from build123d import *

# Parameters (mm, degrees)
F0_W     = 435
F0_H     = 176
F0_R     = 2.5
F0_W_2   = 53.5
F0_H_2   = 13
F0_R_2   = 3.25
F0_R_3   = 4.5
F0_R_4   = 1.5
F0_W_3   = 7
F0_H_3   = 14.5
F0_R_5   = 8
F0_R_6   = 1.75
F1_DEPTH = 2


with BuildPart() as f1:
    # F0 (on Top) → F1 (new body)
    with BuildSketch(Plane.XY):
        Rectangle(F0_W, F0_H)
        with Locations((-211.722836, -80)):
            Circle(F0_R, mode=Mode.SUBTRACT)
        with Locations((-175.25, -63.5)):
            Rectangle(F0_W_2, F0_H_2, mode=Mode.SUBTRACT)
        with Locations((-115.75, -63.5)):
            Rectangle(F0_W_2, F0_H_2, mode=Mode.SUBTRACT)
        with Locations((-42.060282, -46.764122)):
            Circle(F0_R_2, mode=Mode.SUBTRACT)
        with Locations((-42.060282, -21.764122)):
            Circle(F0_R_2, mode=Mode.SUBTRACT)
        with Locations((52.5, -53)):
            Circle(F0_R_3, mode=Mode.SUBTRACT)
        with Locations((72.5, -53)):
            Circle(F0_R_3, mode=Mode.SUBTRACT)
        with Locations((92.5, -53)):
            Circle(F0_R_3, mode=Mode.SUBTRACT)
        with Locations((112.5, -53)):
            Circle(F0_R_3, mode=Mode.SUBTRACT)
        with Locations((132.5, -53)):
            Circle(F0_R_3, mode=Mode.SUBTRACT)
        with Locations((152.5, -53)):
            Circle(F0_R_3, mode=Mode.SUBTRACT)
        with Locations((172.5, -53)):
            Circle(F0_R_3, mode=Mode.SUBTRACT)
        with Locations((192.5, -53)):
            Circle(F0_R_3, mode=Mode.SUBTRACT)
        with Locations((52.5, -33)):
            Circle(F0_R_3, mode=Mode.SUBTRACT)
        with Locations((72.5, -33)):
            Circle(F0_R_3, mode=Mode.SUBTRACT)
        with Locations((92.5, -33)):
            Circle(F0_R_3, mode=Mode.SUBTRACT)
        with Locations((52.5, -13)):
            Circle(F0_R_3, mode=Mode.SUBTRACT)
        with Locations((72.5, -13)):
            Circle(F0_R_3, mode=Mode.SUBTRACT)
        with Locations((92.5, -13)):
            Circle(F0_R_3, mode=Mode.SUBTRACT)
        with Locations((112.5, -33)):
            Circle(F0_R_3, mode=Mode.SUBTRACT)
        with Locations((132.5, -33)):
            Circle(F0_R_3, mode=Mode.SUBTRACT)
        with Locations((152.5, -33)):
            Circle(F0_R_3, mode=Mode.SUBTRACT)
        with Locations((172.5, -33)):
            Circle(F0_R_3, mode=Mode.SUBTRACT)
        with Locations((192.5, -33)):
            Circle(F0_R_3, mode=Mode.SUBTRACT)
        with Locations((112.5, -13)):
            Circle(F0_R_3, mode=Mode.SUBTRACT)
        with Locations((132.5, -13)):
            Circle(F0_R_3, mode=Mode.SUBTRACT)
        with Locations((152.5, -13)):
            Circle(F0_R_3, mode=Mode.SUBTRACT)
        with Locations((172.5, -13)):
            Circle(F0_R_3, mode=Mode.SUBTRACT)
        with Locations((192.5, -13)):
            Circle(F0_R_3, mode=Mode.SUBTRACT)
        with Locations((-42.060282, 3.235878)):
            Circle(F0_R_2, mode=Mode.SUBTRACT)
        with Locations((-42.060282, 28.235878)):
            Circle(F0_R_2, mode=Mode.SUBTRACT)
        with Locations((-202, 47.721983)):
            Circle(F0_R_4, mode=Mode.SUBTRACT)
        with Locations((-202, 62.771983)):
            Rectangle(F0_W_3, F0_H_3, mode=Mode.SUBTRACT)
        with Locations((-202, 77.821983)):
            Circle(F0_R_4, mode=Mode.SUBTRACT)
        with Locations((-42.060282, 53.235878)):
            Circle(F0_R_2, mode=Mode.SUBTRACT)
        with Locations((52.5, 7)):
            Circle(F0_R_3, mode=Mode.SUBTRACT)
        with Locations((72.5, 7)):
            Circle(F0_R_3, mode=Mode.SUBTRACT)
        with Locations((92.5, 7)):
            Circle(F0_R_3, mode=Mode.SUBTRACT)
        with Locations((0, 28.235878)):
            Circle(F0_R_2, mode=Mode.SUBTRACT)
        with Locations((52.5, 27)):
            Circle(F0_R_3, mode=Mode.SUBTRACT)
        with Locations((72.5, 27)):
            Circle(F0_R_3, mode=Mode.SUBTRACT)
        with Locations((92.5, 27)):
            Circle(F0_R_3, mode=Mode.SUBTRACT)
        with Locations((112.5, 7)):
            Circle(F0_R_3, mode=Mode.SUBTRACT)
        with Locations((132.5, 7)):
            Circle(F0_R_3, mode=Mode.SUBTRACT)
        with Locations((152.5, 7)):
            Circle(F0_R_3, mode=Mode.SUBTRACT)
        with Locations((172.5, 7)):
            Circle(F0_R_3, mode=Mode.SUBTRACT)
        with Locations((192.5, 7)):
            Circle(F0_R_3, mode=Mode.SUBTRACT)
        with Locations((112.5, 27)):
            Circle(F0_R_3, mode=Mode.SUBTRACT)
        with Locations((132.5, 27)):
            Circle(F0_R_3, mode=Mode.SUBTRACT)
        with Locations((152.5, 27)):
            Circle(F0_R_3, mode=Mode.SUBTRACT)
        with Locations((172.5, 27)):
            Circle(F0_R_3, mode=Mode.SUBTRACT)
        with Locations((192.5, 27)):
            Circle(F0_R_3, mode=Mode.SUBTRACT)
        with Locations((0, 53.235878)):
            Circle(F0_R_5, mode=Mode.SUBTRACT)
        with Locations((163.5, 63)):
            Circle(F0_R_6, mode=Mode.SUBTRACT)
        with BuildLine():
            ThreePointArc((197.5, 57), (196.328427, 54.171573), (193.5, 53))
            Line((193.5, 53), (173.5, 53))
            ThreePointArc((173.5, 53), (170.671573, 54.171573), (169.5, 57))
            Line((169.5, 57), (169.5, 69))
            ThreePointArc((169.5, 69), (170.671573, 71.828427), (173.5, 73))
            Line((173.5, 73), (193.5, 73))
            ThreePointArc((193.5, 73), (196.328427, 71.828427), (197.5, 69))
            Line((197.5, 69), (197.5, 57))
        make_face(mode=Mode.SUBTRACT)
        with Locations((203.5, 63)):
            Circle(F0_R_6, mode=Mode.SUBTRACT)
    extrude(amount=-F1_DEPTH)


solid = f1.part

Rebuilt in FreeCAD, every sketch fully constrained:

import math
import FreeCAD as App
import Part
import Sketcher


def add_polygon(sketch, points):
    """Adds a closed chain of lines whose ends are joined by coincident constraints."""
    first, n = sketch.GeometryCount, len(points)
    for a, b in zip(points, points[1:] + points[:1]):
        sketch.addGeometry(Part.LineSegment(App.Vector(*a, 0), App.Vector(*b, 0)), False)
    for i in range(n):
        sketch.addConstraint(Sketcher.Constraint("Coincident", first + i, 2, first + (i + 1) % n, 1))

doc = App.newDocument("Part")
body = doc.addObject("PartDesign::Body", "Body")

# Sketch on XY plane
sketch1 = doc.addObject("Sketcher::SketchObject", "Sketch")
body.addObject(sketch1)
sketch1.AttachmentSupport = (doc.XY_Plane, [""])
sketch1.MapMode = "FlatFace"
add_polygon(sketch1, [(-217.5, 88), (-217.5, -88), (217.5, -88), (217.5, 88)])  # lines 0-3
sketch1.addGeometry(Part.Circle(App.Vector(-211.722836, -80, 0), App.Vector(0, 0, 1), 2.5), False)  # 4
add_polygon(sketch1, [(-148.5, -70), (-202, -70), (-202, -57), (-148.5, -57)])  # lines 5-8
add_polygon(sketch1, [(-89, -70), (-142.5, -70), (-142.5, -57), (-89, -57)])  # lines 9-12
sketch1.addGeometry(Part.Circle(App.Vector(-42.060282, -46.764122, 0), App.Vector(0, 0, 1), 3.25), False)  # 13
sketch1.addGeometry(Part.Circle(App.Vector(-42.060282, -21.764122, 0), App.Vector(0, 0, 1), 3.25), False)  # 14
sketch1.addGeometry(Part.Circle(App.Vector(52.5, -53, 0), App.Vector(0, 0, 1), 4.5), False)  # 15
sketch1.addGeometry(Part.Circle(App.Vector(72.5, -53, 0), App.Vector(0, 0, 1), 4.5), False)  # 16
sketch1.addGeometry(Part.Circle(App.Vector(92.5, -53, 0), App.Vector(0, 0, 1), 4.5), False)  # 17
sketch1.addGeometry(Part.Circle(App.Vector(112.5, -53, 0), App.Vector(0, 0, 1), 4.5), False)  # 18
sketch1.addGeometry(Part.Circle(App.Vector(132.5, -53, 0), App.Vector(0, 0, 1), 4.5), False)  # 19
sketch1.addGeometry(Part.Circle(App.Vector(152.5, -53, 0), App.Vector(0, 0, 1), 4.5), False)  # 20
sketch1.addGeometry(Part.Circle(App.Vector(172.5, -53, 0), App.Vector(0, 0, 1), 4.5), False)  # 21
sketch1.addGeometry(Part.Circle(App.Vector(192.5, -53, 0), App.Vector(0, 0, 1), 4.5), False)  # 22
sketch1.addGeometry(Part.Circle(App.Vector(52.5, -33, 0), App.Vector(0, 0, 1), 4.5), False)  # 23
sketch1.addGeometry(Part.Circle(App.Vector(72.5, -33, 0), App.Vector(0, 0, 1), 4.5), False)  # 24
sketch1.addGeometry(Part.Circle(App.Vector(92.5, -33, 0), App.Vector(0, 0, 1), 4.5), False)  # 25
sketch1.addGeometry(Part.Circle(App.Vector(52.5, -13, 0), App.Vector(0, 0, 1), 4.5), False)  # 26
sketch1.addGeometry(Part.Circle(App.Vector(72.5, -13, 0), App.Vector(0, 0, 1), 4.5), False)  # 27
sketch1.addGeometry(Part.Circle(App.Vector(92.5, -13, 0), App.Vector(0, 0, 1), 4.5), False)  # 28
sketch1.addGeometry(Part.Circle(App.Vector(112.5, -33, 0), App.Vector(0, 0, 1), 4.5), False)  # 29
sketch1.addGeometry(Part.Circle(App.Vector(132.5, -33, 0), App.Vector(0, 0, 1), 4.5), False)  # 30
sketch1.addGeometry(Part.Circle(App.Vector(152.5, -33, 0), App.Vector(0, 0, 1), 4.5), False)  # 31
sketch1.addGeometry(Part.Circle(App.Vector(172.5, -33, 0), App.Vector(0, 0, 1), 4.5), False)  # 32
sketch1.addGeometry(Part.Circle(App.Vector(192.5, -33, 0), App.Vector(0, 0, 1), 4.5), False)  # 33
sketch1.addGeometry(Part.Circle(App.Vector(112.5, -13, 0), App.Vector(0, 0, 1), 4.5), False)  # 34
sketch1.addGeometry(Part.Circle(App.Vector(132.5, -13, 0), App.Vector(0, 0, 1), 4.5), False)  # 35
sketch1.addGeometry(Part.Circle(App.Vector(152.5, -13, 0), App.Vector(0, 0, 1), 4.5), False)  # 36
sketch1.addGeometry(Part.Circle(App.Vector(172.5, -13, 0), App.Vector(0, 0, 1), 4.5), False)  # 37
sketch1.addGeometry(Part.Circle(App.Vector(192.5, -13, 0), App.Vector(0, 0, 1), 4.5), False)  # 38
sketch1.addGeometry(Part.Circle(App.Vector(-42.060282, 3.235878, 0), App.Vector(0, 0, 1), 3.25), False)  # 39
sketch1.addGeometry(Part.Circle(App.Vector(-42.060282, 28.235878, 0), App.Vector(0, 0, 1), 3.25), False)  # 40
sketch1.addGeometry(Part.Circle(App.Vector(-202, 47.721983, 0), App.Vector(0, 0, 1), 1.5), False)  # 41
add_polygon(sketch1, [(-198.5, 55.521983), (-205.5, 55.521983), (-205.5, 70.021983), (-198.5, 70.021983)])  # lines 42-45
sketch1.addGeometry(Part.Circle(App.Vector(-202, 77.821983, 0), App.Vector(0, 0, 1), 1.5), False)  # 46
sketch1.addGeometry(Part.Circle(App.Vector(-42.060282, 53.235878, 0), App.Vector(0, 0, 1), 3.25), False)  # 47
sketch1.addGeometry(Part.Circle(App.Vector(52.5, 7, 0), App.Vector(0, 0, 1), 4.5), False)  # 48
sketch1.addGeometry(Part.Circle(App.Vector(72.5, 7, 0), App.Vector(0, 0, 1), 4.5), False)  # 49
sketch1.addGeometry(Part.Circle(App.Vector(92.5, 7, 0), App.Vector(0, 0, 1), 4.5), False)  # 50
sketch1.addGeometry(Part.Circle(App.Vector(0, 28.235878, 0), App.Vector(0, 0, 1), 3.25), False)  # 51
sketch1.addGeometry(Part.Circle(App.Vector(52.5, 27, 0), App.Vector(0, 0, 1), 4.5), False)  # 52
sketch1.addGeometry(Part.Circle(App.Vector(72.5, 27, 0), App.Vector(0, 0, 1), 4.5), False)  # 53
sketch1.addGeometry(Part.Circle(App.Vector(92.5, 27, 0), App.Vector(0, 0, 1), 4.5), False)  # 54
sketch1.addGeometry(Part.Circle(App.Vector(112.5, 7, 0), App.Vector(0, 0, 1), 4.5), False)  # 55
sketch1.addGeometry(Part.Circle(App.Vector(132.5, 7, 0), App.Vector(0, 0, 1), 4.5), False)  # 56
sketch1.addGeometry(Part.Circle(App.Vector(152.5, 7, 0), App.Vector(0, 0, 1), 4.5), False)  # 57
sketch1.addGeometry(Part.Circle(App.Vector(172.5, 7, 0), App.Vector(0, 0, 1), 4.5), False)  # 58
sketch1.addGeometry(Part.Circle(App.Vector(192.5, 7, 0), App.Vector(0, 0, 1), 4.5), False)  # 59
sketch1.addGeometry(Part.Circle(App.Vector(112.5, 27, 0), App.Vector(0, 0, 1), 4.5), False)  # 60
sketch1.addGeometry(Part.Circle(App.Vector(132.5, 27, 0), App.Vector(0, 0, 1), 4.5), False)  # 61
sketch1.addGeometry(Part.Circle(App.Vector(152.5, 27, 0), App.Vector(0, 0, 1), 4.5), False)  # 62
sketch1.addGeometry(Part.Circle(App.Vector(172.5, 27, 0), App.Vector(0, 0, 1), 4.5), False)  # 63
sketch1.addGeometry(Part.Circle(App.Vector(192.5, 27, 0), App.Vector(0, 0, 1), 4.5), False)  # 64
sketch1.addGeometry(Part.Circle(App.Vector(0, 53.235878, 0), App.Vector(0, 0, 1), 8), False)  # 65
sketch1.addGeometry(Part.Circle(App.Vector(163.5, 63, 0), App.Vector(0, 0, 1), 1.75), False)  # 66
sketch1.addGeometry(Part.LineSegment(App.Vector(197.5, 69, 0), App.Vector(197.5, 57, 0)), False)  # 67
sketch1.addGeometry(Part.ArcOfCircle(Part.Circle(App.Vector(193.5, 57, 0), App.Vector(0, 0, 1), 4), math.radians(-89.999994), math.radians(-0.000006)), False)  # 68
sketch1.addGeometry(Part.LineSegment(App.Vector(193.5, 53, 0), App.Vector(173.5, 53, 0)), False)  # 69
sketch1.addGeometry(Part.ArcOfCircle(Part.Circle(App.Vector(173.5, 57, 0), App.Vector(0, 0, 1), 4), math.radians(-179.999994), math.radians(-90.000006)), False)  # 70
sketch1.addGeometry(Part.LineSegment(App.Vector(169.5, 57, 0), App.Vector(169.5, 69, 0)), False)  # 71
sketch1.addGeometry(Part.ArcOfCircle(Part.Circle(App.Vector(173.5, 69, 0), App.Vector(0, 0, 1), 4), math.radians(90.000006), math.radians(179.999994)), False)  # 72
sketch1.addGeometry(Part.LineSegment(App.Vector(173.5, 73, 0), App.Vector(193.5, 73, 0)), False)  # 73
sketch1.addGeometry(Part.ArcOfCircle(Part.Circle(App.Vector(193.5, 69, 0), App.Vector(0, 0, 1), 4), math.radians(0.000006), math.radians(89.999994)), False)  # 74
sketch1.addGeometry(Part.Circle(App.Vector(203.5, 63, 0), App.Vector(0, 0, 1), 1.75), False)  # 75
sketch1.addConstraint([
    Sketcher.Constraint("Tangent", 67, 2, 68, 2),
    Sketcher.Constraint("Tangent", 68, 1, 69, 1),
    Sketcher.Constraint("Tangent", 69, 2, 70, 2),
    Sketcher.Constraint("Tangent", 70, 1, 71, 1),
    Sketcher.Constraint("Tangent", 71, 2, 72, 2),
    Sketcher.Constraint("Tangent", 72, 1, 73, 1),
    Sketcher.Constraint("Tangent", 73, 2, 74, 2),
    Sketcher.Constraint("Tangent", 74, 1, 67, 1),
    Sketcher.Constraint("Vertical", 0),
    Sketcher.Constraint("Horizontal", 1),
    Sketcher.Constraint("Vertical", 2),
    Sketcher.Constraint("Horizontal", 3),
    Sketcher.Constraint("Horizontal", 5),
    Sketcher.Constraint("Vertical", 6),
    Sketcher.Constraint("Horizontal", 7),
    Sketcher.Constraint("Vertical", 8),
    Sketcher.Constraint("Horizontal", 9),
    Sketcher.Constraint("Vertical", 10),
    Sketcher.Constraint("Horizontal", 11),
    Sketcher.Constraint("Vertical", 12),
    Sketcher.Constraint("Horizontal", 42),
    Sketcher.Constraint("Vertical", 43),
    Sketcher.Constraint("Horizontal", 44),
    Sketcher.Constraint("Vertical", 45),
    Sketcher.Constraint("Vertical", 67),
    Sketcher.Constraint("Horizontal", 69),
    Sketcher.Constraint("Vertical", 71),
    Sketcher.Constraint("Horizontal", 73),
    Sketcher.Constraint("Equal", 13, 14),
    Sketcher.Constraint("Equal", 15, 16),
    Sketcher.Constraint("Equal", 16, 17),
    Sketcher.Constraint("Equal", 17, 18),
    Sketcher.Constraint("Equal", 18, 19),
    Sketcher.Constraint("Equal", 19, 20),
    Sketcher.Constraint("Equal", 20, 21),
    Sketcher.Constraint("Equal", 21, 22),
    Sketcher.Constraint("Equal", 22, 23),
    Sketcher.Constraint("Equal", 23, 24),
    Sketcher.Constraint("Equal", 24, 25),
    Sketcher.Constraint("Equal", 25, 26),
    Sketcher.Constraint("Equal", 26, 27),
    Sketcher.Constraint("Equal", 27, 28),
    Sketcher.Constraint("Equal", 28, 29),
    Sketcher.Constraint("Equal", 29, 30),
    Sketcher.Constraint("Equal", 30, 31),
    Sketcher.Constraint("Equal", 31, 32),
    Sketcher.Constraint("Equal", 32, 33),
    Sketcher.Constraint("Equal", 33, 34),
    Sketcher.Constraint("Equal", 34, 35),
    Sketcher.Constraint("Equal", 35, 36),
    Sketcher.Constraint("Equal", 36, 37),
    Sketcher.Constraint("Equal", 37, 38),
    Sketcher.Constraint("Equal", 14, 39),
    Sketcher.Constraint("Equal", 39, 40),
    Sketcher.Constraint("Equal", 41, 46),
    Sketcher.Constraint("Equal", 40, 47),
    Sketcher.Constraint("Equal", 38, 48),
    Sketcher.Constraint("Equal", 48, 49),
    Sketcher.Constraint("Equal", 49, 50),
    Sketcher.Constraint("Equal", 47, 51),
    Sketcher.Constraint("Equal", 50, 52),
    Sketcher.Constraint("Equal", 52, 53),
    Sketcher.Constraint("Equal", 53, 54),
    Sketcher.Constraint("Equal", 54, 55),
    Sketcher.Constraint("Equal", 55, 56),
    Sketcher.Constraint("Equal", 56, 57),
    Sketcher.Constraint("Equal", 57, 58),
    Sketcher.Constraint("Equal", 58, 59),
    Sketcher.Constraint("Equal", 59, 60),
    Sketcher.Constraint("Equal", 60, 61),
    Sketcher.Constraint("Equal", 61, 62),
    Sketcher.Constraint("Equal", 62, 63),
    Sketcher.Constraint("Equal", 63, 64),
    Sketcher.Constraint("Equal", 68, 70),
    Sketcher.Constraint("Equal", 70, 72),
    Sketcher.Constraint("Equal", 72, 74),
    Sketcher.Constraint("Equal", 66, 75),
    Sketcher.Constraint("Symmetric", 0, 2, 2, 2, -1, 1),
    Sketcher.Constraint("PointOnObject", 51, 3, -2),
    Sketcher.Constraint("PointOnObject", 65, 3, -2),
    Sketcher.Constraint("Horizontal", 15, 3, 16, 3),
    Sketcher.Constraint("Horizontal", 16, 3, 17, 3),
    Sketcher.Constraint("Horizontal", 17, 3, 18, 3),
    Sketcher.Constraint("Horizontal", 18, 3, 19, 3),
    Sketcher.Constraint("Horizontal", 19, 3, 20, 3),
    Sketcher.Constraint("Horizontal", 20, 3, 21, 3),
    Sketcher.Constraint("Horizontal", 21, 3, 22, 3),
    Sketcher.Constraint("Horizontal", 23, 3, 24, 3),
    Sketcher.Constraint("Horizontal", 24, 3, 25, 3),
    Sketcher.Constraint("Horizontal", 26, 3, 27, 3),
    Sketcher.Constraint("Horizontal", 27, 3, 28, 3),
    Sketcher.Constraint("Horizontal", 25, 3, 29, 3),
    Sketcher.Constraint("Horizontal", 29, 3, 30, 3),
    Sketcher.Constraint("Horizontal", 30, 3, 31, 3),
    Sketcher.Constraint("Horizontal", 31, 3, 32, 3),
    Sketcher.Constraint("Horizontal", 32, 3, 33, 3),
    Sketcher.Constraint("Horizontal", 28, 3, 34, 3),
    Sketcher.Constraint("Horizontal", 34, 3, 35, 3),
    Sketcher.Constraint("Horizontal", 35, 3, 36, 3),
    Sketcher.Constraint("Horizontal", 36, 3, 37, 3),
    Sketcher.Constraint("Horizontal", 37, 3, 38, 3),
    Sketcher.Constraint("Horizontal", 48, 3, 49, 3),
    Sketcher.Constraint("Horizontal", 49, 3, 50, 3),
    Sketcher.Constraint("Horizontal", 40, 3, 51, 3),
    Sketcher.Constraint("Horizontal", 52, 3, 53, 3),
    Sketcher.Constraint("Horizontal", 53, 3, 54, 3),
    Sketcher.Constraint("Horizontal", 50, 3, 55, 3),
    Sketcher.Constraint("Horizontal", 55, 3, 56, 3),
    Sketcher.Constraint("Horizontal", 56, 3, 57, 3),
    Sketcher.Constraint("Horizontal", 57, 3, 58, 3),
    Sketcher.Constraint("Horizontal", 58, 3, 59, 3),
    Sketcher.Constraint("Horizontal", 54, 3, 60, 3),
    Sketcher.Constraint("Horizontal", 60, 3, 61, 3),
    Sketcher.Constraint("Horizontal", 61, 3, 62, 3),
    Sketcher.Constraint("Horizontal", 62, 3, 63, 3),
    Sketcher.Constraint("Horizontal", 63, 3, 64, 3),
    Sketcher.Constraint("Horizontal", 47, 3, 65, 3),
    Sketcher.Constraint("Horizontal", 66, 3, 75, 3),
    Sketcher.Constraint("Horizontal", 8, 2, 9, 2),
    Sketcher.Constraint("Horizontal", 7, 2, 10, 2),
    Sketcher.Constraint("Vertical", 13, 3, 14, 3),
    Sketcher.Constraint("Vertical", 15, 3, 23, 3),
    Sketcher.Constraint("Vertical", 16, 3, 24, 3),
    Sketcher.Constraint("Vertical", 17, 3, 25, 3),
    Sketcher.Constraint("Vertical", 23, 3, 26, 3),
    Sketcher.Constraint("Vertical", 24, 3, 27, 3),
    Sketcher.Constraint("Vertical", 25, 3, 28, 3),
    Sketcher.Constraint("Vertical", 18, 3, 29, 3),
    Sketcher.Constraint("Vertical", 19, 3, 30, 3),
    Sketcher.Constraint("Vertical", 20, 3, 31, 3),
    Sketcher.Constraint("Vertical", 21, 3, 32, 3),
    Sketcher.Constraint("Vertical", 22, 3, 33, 3),
    Sketcher.Constraint("Vertical", 29, 3, 34, 3),
    Sketcher.Constraint("Vertical", 30, 3, 35, 3),
    Sketcher.Constraint("Vertical", 31, 3, 36, 3),
    Sketcher.Constraint("Vertical", 32, 3, 37, 3),
    Sketcher.Constraint("Vertical", 33, 3, 38, 3),
    Sketcher.Constraint("Vertical", 14, 3, 39, 3),
    Sketcher.Constraint("Vertical", 39, 3, 40, 3),
    Sketcher.Constraint("Vertical", 41, 3, 46, 3),
    Sketcher.Constraint("Vertical", 40, 3, 47, 3),
    Sketcher.Constraint("Vertical", 26, 3, 48, 3),
    Sketcher.Constraint("Vertical", 27, 3, 49, 3),
    Sketcher.Constraint("Vertical", 28, 3, 50, 3),
    Sketcher.Constraint("Vertical", 48, 3, 52, 3),
    Sketcher.Constraint("Vertical", 49, 3, 53, 3),
    Sketcher.Constraint("Vertical", 50, 3, 54, 3),
    Sketcher.Constraint("Vertical", 34, 3, 55, 3),
    Sketcher.Constraint("Vertical", 35, 3, 56, 3),
    Sketcher.Constraint("Vertical", 36, 3, 57, 3),
    Sketcher.Constraint("Vertical", 37, 3, 58, 3),
    Sketcher.Constraint("Vertical", 38, 3, 59, 3),
    Sketcher.Constraint("Vertical", 55, 3, 60, 3),
    Sketcher.Constraint("Vertical", 56, 3, 61, 3),
    Sketcher.Constraint("Vertical", 57, 3, 62, 3),
    Sketcher.Constraint("Vertical", 58, 3, 63, 3),
    Sketcher.Constraint("Vertical", 59, 3, 64, 3),
    Sketcher.Constraint("Vertical", 46, 3, 5, 2),
    Sketcher.Constraint("Equal", 7, 9),
    Sketcher.Constraint("Diameter", 4, 5.0),
    Sketcher.Constraint("Diameter", 15, 9.0),
    Sketcher.Constraint("Diameter", 41, 3.0),
    Sketcher.Constraint("Diameter", 65, 16.0),
    Sketcher.Constraint("Radius", 68, 4.0),
    Sketcher.Constraint("Diameter", 13, 6.5),
    Sketcher.Constraint("Diameter", 66, 3.5),
    Sketcher.Constraint("DistanceX", 1, 1, 1, 2, 435.0),
    Sketcher.Constraint("DistanceX", 42, 2, 42, 1, 7.0),
    Sketcher.Constraint("DistanceX", 69, 2, 69, 1, 20.0),
    Sketcher.Constraint("DistanceY", 0, 2, 0, 1, 176.0),
    Sketcher.Constraint("DistanceY", 6, 1, 6, 2, 13.0),
    Sketcher.Constraint("DistanceY", 67, 2, 67, 1, 12.0),
    Sketcher.Constraint("DistanceX", 5, 2, 5, 1, 53.5),
    Sketcher.Constraint("DistanceY", 43, 1, 43, 2, 14.5),
    Sketcher.Constraint("DistanceY", 4, 3, -1, 1, 80.0),
    Sketcher.Constraint("DistanceY", 15, 3, -1, 1, 53.0),
    Sketcher.Constraint("DistanceY", 23, 3, -1, 1, 33.0),
    Sketcher.Constraint("DistanceY", 26, 3, -1, 1, 13.0),
    Sketcher.Constraint("DistanceX", 41, 3, -1, 1, 202.0),
    Sketcher.Constraint("DistanceY", -1, 1, 48, 3, 7.0),
    Sketcher.Constraint("DistanceY", -1, 1, 52, 3, 27.0),
    Sketcher.Constraint("DistanceY", -1, 1, 66, 3, 63.0),
    Sketcher.Constraint("DistanceY", -1, 1, 68, 3, 57.0),
    Sketcher.Constraint("DistanceY", 5, 2, -1, 1, 70.0),
    Sketcher.Constraint("DistanceX", 11, 2, -1, 1, 89.0),
    Sketcher.Constraint("DistanceX", -1, 1, 15, 3, 52.5),
    Sketcher.Constraint("DistanceX", -1, 1, 16, 3, 72.5),
    Sketcher.Constraint("DistanceX", -1, 1, 17, 3, 92.5),
    Sketcher.Constraint("DistanceX", -1, 1, 18, 3, 112.5),
    Sketcher.Constraint("DistanceX", -1, 1, 19, 3, 132.5),
    Sketcher.Constraint("DistanceX", -1, 1, 20, 3, 152.5),
    Sketcher.Constraint("DistanceX", -1, 1, 21, 3, 172.5),
    Sketcher.Constraint("DistanceX", -1, 1, 22, 3, 192.5),
    Sketcher.Constraint("DistanceX", -1, 1, 66, 3, 163.5),
    Sketcher.Constraint("DistanceX", -1, 1, 68, 3, 193.5),
    Sketcher.Constraint("DistanceX", -1, 1, 75, 3, 203.5),
    Sketcher.Constraint("DistanceX", 42, 2, -1, 1, 205.5),
    Sketcher.Constraint("DistanceY", -1, 1, 39, 3, 3.235878),
    Sketcher.Constraint("DistanceX", 4, 3, -1, 1, 211.722836),
    Sketcher.Constraint("DistanceX", 13, 3, -1, 1, 42.060282),
    Sketcher.Constraint("DistanceY", 13, 3, -1, 1, 46.764122),
    Sketcher.Constraint("DistanceY", 14, 3, -1, 1, 21.764122),
    Sketcher.Constraint("DistanceY", -1, 1, 40, 3, 28.235878),
    Sketcher.Constraint("DistanceY", -1, 1, 41, 3, 47.721983),
    Sketcher.Constraint("DistanceY", -1, 1, 46, 3, 77.821983),
    Sketcher.Constraint("DistanceY", -1, 1, 47, 3, 53.235878),
    Sketcher.Constraint("DistanceY", -1, 1, 42, 2, 55.521983),
])
pad1 = doc.addObject("PartDesign::Pad", "Pad")
body.addObject(pad1)
pad1.Profile = sketch1
pad1.Length = 2
pad1.Reversed = True

doc.recompute()
